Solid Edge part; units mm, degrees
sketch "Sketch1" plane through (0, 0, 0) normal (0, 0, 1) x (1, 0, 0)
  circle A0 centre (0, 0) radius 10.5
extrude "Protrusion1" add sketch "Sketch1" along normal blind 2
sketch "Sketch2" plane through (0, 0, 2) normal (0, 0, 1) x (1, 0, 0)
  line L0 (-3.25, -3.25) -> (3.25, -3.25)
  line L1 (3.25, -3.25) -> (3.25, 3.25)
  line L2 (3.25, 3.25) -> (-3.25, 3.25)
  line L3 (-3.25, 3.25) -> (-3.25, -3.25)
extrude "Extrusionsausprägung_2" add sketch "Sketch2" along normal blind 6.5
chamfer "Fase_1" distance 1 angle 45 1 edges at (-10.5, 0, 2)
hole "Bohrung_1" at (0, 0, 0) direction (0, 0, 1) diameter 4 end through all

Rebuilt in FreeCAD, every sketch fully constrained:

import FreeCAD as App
import Part
import Sketcher

V = App.Vector
Q = App.Units.Quantity


def edges_at(feature, points):
    """Names of the edges that pass closest to the given points."""
    edges = feature.Shape.Edges
    near = lambda p: min(range(len(edges)), key=lambda i: edges[i].distToShape(Part.Vertex(*p))[0])
    return sorted({f"Edge{near(p) + 1}" for p in points})

doc = App.newDocument("Part")
body = doc.addObject("PartDesign::Body", "Body")

sketch1 = body.newObject("Sketcher::SketchObject", "Sketch")
sketch1.AttachmentSupport = (doc.getObject("XY_Plane"), [""])
sketch1.MapMode = "FlatFace"
sketch1.addGeometry(Part.Circle(V(0, 0, 0), V(0, 0, 1), 10), False)
sketch1.addConstraint(Sketcher.Constraint("Coincident", 0, 3, -1, 1))
sketch1.addConstraint(Sketcher.Constraint("Diameter", 0, Q("21 mm")))
pad1 = body.newObject("PartDesign::Pad", "Pad")
pad1.Profile = sketch1
pad1.Length = 2

sketch2 = body.newObject("Sketcher::SketchObject", "Sketch001")
sketch2.AttachmentSupport = (doc.getObject("XY_Plane"), [""])
sketch2.MapMode = "FlatFace"
sketch2.AttachmentOffset = App.Placement(V(0, 0, 2), App.Rotation())
sketch2.addGeometry(Part.LineSegment(V(-3, 3, 0), V(-3, -3, 0)), False)
sketch2.addGeometry(Part.LineSegment(V(-3, -3, 0), V(3, -3, 0)), False)
sketch2.addGeometry(Part.LineSegment(V(3, -3, 0), V(3, 3, 0)), False)
sketch2.addGeometry(Part.LineSegment(V(3, 3, 0), V(-3, 3, 0)), False)
sketch2.addConstraint(Sketcher.Constraint("Coincident", 0, 2, 1, 1))
sketch2.addConstraint(Sketcher.Constraint("Coincident", 1, 2, 2, 1))
sketch2.addConstraint(Sketcher.Constraint("Coincident", 2, 2, 3, 1))
sketch2.addConstraint(Sketcher.Constraint("Coincident", 3, 2, 0, 1))
sketch2.addConstraint(Sketcher.Constraint("Vertical", 0))
sketch2.addConstraint(Sketcher.Constraint("Horizontal", 1))
sketch2.addConstraint(Sketcher.Constraint("Vertical", 2))
sketch2.addConstraint(Sketcher.Constraint("Horizontal", 3))
sketch2.addConstraint(Sketcher.Constraint("Symmetric", 0, 2, 2, 2, -1, 1))
sketch2.addConstraint(Sketcher.Constraint("Equal", 3, 0))
sketch2.addConstraint(Sketcher.Constraint("DistanceX", 1, 1, 1, 2, Q("6.5 mm")))
pad2 = body.newObject("PartDesign::Pad", "Pad001")
pad2.Profile = sketch2
pad2.Length = 6.5
doc.recompute()

chamfer = body.newObject("PartDesign::Chamfer", "Chamfer")
chamfer.Base = (pad2, edges_at(pad2, [(-10.5, 0, 2)]))
chamfer.Size = 1

sketch3 = body.newObject("Sketcher::SketchObject", "Sketch002")
sketch3.AttachmentSupport = (doc.getObject("XY_Plane"), [""])
sketch3.MapMode = "FlatFace"
sketch3.addGeometry(Part.Circle(V(0, 0, 0), V(0, 0, 1), 2), False)
sketch3.addConstraint(Sketcher.Constraint("Coincident", 0, 3, -1, 1))
sketch3.addConstraint(Sketcher.Constraint("Diameter", 0, Q("4 mm")))
doc.recompute()
hole = body.newObject("PartDesign::Hole", "Hole")
hole.Profile = sketch3
hole.ThreadType = "None"
hole.Diameter = 4
hole.DepthType = "ThroughAll"
hole.Reversed = True

doc.recompute()
